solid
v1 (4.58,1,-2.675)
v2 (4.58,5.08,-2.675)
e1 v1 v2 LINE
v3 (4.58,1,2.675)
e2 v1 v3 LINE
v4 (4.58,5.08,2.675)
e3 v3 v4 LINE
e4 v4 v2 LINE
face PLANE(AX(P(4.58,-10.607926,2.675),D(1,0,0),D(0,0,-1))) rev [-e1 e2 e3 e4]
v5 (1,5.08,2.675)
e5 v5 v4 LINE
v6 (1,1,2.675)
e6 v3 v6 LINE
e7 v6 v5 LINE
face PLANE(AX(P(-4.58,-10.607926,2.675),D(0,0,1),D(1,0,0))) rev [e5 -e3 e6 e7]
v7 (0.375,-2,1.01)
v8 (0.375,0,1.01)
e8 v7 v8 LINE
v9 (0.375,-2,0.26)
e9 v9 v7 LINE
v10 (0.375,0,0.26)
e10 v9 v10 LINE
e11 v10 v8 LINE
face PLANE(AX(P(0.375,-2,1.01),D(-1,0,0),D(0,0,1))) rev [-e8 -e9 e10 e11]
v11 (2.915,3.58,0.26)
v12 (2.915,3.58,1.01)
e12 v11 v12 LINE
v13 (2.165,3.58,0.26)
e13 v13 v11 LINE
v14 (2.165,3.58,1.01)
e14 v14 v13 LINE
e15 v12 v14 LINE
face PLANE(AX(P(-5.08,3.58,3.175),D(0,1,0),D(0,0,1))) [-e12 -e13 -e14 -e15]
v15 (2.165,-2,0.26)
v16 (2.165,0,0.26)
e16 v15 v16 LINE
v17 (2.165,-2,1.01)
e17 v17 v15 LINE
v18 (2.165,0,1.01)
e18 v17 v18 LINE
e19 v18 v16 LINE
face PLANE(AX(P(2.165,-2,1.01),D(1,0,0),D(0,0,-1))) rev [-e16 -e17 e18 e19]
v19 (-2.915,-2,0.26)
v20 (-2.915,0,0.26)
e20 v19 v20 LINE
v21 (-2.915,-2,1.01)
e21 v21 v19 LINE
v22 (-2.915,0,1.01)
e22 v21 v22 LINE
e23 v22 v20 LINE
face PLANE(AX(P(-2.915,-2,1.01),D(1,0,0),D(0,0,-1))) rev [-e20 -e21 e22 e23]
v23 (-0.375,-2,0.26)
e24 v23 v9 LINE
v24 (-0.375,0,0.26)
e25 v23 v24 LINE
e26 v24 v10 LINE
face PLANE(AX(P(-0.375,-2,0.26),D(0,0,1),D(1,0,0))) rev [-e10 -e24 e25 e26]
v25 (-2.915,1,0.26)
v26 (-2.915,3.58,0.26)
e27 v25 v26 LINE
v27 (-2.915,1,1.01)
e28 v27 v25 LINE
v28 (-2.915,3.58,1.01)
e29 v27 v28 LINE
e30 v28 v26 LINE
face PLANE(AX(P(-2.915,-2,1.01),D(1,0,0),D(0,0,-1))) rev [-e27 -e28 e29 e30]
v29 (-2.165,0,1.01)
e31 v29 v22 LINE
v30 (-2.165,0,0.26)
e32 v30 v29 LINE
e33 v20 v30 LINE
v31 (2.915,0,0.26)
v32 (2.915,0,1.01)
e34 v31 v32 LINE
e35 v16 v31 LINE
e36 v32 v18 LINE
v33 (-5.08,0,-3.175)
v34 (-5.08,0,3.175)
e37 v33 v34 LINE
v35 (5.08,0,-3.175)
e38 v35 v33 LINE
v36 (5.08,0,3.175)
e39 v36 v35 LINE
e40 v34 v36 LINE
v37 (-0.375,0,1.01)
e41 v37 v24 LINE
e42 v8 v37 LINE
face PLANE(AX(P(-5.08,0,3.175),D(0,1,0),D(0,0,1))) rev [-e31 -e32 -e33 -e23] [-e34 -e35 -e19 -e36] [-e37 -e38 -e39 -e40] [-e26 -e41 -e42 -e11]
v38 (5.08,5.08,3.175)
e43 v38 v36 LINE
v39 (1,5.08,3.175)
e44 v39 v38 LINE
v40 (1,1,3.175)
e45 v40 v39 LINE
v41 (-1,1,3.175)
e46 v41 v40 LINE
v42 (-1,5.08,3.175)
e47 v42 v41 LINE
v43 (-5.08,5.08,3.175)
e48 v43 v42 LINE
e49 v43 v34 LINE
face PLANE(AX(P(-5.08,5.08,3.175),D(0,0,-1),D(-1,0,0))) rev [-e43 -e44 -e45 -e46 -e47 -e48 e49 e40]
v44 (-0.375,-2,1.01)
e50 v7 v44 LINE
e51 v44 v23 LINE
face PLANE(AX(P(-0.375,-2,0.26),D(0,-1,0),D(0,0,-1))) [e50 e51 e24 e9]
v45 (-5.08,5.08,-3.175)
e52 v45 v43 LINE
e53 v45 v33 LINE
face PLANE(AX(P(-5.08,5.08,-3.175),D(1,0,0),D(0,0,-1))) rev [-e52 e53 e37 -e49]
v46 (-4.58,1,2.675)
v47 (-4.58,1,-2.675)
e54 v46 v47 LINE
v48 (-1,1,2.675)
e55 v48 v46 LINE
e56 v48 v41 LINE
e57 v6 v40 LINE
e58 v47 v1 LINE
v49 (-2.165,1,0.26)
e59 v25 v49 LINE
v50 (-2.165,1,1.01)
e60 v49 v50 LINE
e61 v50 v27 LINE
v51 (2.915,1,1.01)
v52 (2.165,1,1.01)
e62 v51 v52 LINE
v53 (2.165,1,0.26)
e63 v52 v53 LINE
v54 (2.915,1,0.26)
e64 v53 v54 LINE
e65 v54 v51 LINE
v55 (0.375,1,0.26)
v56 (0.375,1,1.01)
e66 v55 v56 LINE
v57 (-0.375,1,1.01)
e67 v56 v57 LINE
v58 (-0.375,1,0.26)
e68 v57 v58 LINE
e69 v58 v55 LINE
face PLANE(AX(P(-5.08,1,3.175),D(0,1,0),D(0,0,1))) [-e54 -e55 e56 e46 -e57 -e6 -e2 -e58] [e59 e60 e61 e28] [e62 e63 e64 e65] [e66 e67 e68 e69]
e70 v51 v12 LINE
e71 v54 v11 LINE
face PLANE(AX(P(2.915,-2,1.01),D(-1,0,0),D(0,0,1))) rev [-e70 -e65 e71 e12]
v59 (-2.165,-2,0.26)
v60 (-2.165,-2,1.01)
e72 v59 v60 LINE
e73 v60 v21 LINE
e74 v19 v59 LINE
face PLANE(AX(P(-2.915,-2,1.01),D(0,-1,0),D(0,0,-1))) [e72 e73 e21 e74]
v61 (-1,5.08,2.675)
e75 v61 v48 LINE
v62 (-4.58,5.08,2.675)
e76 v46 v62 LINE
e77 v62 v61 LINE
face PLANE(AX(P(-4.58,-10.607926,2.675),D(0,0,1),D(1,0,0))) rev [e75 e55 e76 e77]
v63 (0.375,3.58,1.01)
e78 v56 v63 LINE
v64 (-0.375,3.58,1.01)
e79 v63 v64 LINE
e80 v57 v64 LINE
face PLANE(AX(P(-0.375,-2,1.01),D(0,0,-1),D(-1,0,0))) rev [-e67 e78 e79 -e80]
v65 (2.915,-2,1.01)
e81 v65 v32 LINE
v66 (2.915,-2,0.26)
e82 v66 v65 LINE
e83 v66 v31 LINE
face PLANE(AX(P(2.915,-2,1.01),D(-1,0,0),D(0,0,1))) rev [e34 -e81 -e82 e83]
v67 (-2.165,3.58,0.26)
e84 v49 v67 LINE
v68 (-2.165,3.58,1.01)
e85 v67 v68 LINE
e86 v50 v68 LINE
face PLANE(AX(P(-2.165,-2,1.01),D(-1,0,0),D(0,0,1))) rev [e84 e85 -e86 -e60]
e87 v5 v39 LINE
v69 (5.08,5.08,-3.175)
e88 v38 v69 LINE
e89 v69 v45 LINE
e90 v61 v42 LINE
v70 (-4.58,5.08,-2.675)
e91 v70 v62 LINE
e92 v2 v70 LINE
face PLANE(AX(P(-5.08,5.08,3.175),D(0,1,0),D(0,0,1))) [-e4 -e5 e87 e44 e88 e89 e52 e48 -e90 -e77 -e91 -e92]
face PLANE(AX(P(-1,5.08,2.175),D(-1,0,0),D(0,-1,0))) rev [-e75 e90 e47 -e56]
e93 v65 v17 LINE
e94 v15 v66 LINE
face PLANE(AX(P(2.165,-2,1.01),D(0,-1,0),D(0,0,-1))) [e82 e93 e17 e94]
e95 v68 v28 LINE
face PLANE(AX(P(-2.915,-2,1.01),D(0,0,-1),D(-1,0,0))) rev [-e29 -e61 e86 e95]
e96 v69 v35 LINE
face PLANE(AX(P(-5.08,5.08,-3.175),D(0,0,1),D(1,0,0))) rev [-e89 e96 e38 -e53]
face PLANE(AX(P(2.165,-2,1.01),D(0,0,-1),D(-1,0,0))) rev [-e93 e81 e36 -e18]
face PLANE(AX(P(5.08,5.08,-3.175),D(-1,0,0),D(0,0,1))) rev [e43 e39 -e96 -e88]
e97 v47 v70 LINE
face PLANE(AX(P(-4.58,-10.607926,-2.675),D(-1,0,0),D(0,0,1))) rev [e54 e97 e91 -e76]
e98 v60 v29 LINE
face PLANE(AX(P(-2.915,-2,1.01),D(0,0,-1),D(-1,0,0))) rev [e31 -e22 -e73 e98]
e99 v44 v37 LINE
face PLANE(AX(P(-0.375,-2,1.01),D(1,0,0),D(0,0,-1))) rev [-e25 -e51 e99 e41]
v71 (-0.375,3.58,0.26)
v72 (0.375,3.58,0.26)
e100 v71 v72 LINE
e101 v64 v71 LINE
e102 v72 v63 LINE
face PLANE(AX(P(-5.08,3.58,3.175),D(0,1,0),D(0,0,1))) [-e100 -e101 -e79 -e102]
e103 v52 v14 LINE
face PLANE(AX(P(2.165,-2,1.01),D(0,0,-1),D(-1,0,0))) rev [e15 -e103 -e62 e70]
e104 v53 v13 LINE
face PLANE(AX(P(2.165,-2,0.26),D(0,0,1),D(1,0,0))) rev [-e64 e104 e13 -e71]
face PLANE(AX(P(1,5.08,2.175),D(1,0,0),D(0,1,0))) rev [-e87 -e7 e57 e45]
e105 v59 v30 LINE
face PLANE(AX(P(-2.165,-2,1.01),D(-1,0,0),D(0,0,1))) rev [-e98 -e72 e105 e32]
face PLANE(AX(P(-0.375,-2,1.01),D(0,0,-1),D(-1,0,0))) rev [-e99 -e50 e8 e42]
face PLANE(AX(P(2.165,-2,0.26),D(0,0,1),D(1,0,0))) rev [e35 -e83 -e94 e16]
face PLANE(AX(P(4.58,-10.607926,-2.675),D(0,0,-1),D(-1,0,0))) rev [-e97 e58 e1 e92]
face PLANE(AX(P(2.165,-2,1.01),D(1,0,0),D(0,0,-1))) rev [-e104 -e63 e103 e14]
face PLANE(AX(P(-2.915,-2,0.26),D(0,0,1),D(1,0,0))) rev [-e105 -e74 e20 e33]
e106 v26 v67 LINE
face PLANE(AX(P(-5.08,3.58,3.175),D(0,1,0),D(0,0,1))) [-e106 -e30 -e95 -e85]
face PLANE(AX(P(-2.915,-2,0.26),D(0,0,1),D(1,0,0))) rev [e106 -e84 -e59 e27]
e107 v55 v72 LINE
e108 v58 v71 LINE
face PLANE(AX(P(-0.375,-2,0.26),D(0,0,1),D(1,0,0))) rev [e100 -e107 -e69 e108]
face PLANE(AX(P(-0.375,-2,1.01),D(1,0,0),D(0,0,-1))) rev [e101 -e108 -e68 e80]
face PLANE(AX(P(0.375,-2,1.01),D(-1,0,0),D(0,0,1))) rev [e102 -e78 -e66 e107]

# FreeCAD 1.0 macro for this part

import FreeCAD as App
import Part
import Sketcher
from FreeCAD import Vector
Q = App.Units.Quantity

doc = App.newDocument("Part")
body = doc.addObject("PartDesign::Body", "Body")

# Sketch on XZ plane
sketch1 = body.newObject("Sketcher::SketchObject", "Sketch")
sketch1.AttachmentSupport = (doc.getObject("XZ_Plane"), [""])
sketch1.MapMode = "FlatFace"
sketch1.addGeometry([
    Part.LineSegment(Vector(-5, -3, 0), Vector(-5, 3, 0)),
    Part.LineSegment(Vector(-5, 3, 0), Vector(5, 3, 0)),
    Part.LineSegment(Vector(5, 3, 0), Vector(5, -3, 0)),
    Part.LineSegment(Vector(5, -3, 0), Vector(-5, -3, 0)),
], False)
sketch1.addConstraint([
    Sketcher.Constraint("Coincident", 0, 2, 1, 1),
    Sketcher.Constraint("Coincident", 1, 2, 2, 1),
    Sketcher.Constraint("Coincident", 2, 2, 3, 1),
    Sketcher.Constraint("Coincident", 3, 2, 0, 1),
    Sketcher.Constraint("Vertical", 0),
    Sketcher.Constraint("Horizontal", 1),
    Sketcher.Constraint("Vertical", 2),
    Sketcher.Constraint("Horizontal", 3),
    Sketcher.Constraint("Symmetric", 0, 2, 2, 2, -1, 1),
    Sketcher.Constraint("DistanceX", 1, 1, 1, 2, Q("0.4 in")),
    Sketcher.Constraint("DistanceY", 0, 1, 0, 2, Q("0.25 in")),
])
pad1 = body.newObject("PartDesign::Pad", "Pad")
pad1.Profile = sketch1
pad1.Length = Q("0.2 in")
pad1.Reversed = True

# Sketch on XZ plane
sketch2 = body.newObject("Sketcher::SketchObject", "Sketch001")
sketch2.AttachmentSupport = (doc.getObject("XZ_Plane"), [""])
sketch2.MapMode = "FlatFace"
sketch2.AttachmentOffset = App.Placement(Vector(0, 0, -0.2 * 25.4), App.Rotation())
sketch2.addGeometry([
    Part.LineSegment(Vector(5, 3, 0), Vector(5, -3, 0)),
    Part.LineSegment(Vector(5, -3, 0), Vector(-5, -3, 0)),
    Part.LineSegment(Vector(-5, -3, 0), Vector(-5, 3, 0)),
    Part.LineSegment(Vector(-5, 3, 0), Vector(5, 3, 0)),
], False)
sketch2.addConstraint([
    Sketcher.Constraint("Coincident", 0, 2, 1, 1),
    Sketcher.Constraint("Coincident", 1, 2, 2, 1),
    Sketcher.Constraint("Coincident", 2, 2, 3, 1),
    Sketcher.Constraint("Coincident", 3, 2, 0, 1),
    Sketcher.Constraint("Vertical", 0),
    Sketcher.Constraint("Horizontal", 1),
    Sketcher.Constraint("Vertical", 2),
    Sketcher.Constraint("Horizontal", 3),
    Sketcher.Constraint("Symmetric", 0, 2, 2, 2, -1, 1),
    Sketcher.Constraint("DistanceX", 1, 2, 1, 1, Q("9.16 mm")),
    Sketcher.Constraint("DistanceY", 0, 2, 0, 1, Q("5.35 mm")),
])
pocket1 = body.newObject("PartDesign::Pocket", "Pocket")
pocket1.Profile = sketch2
pocket1.Length = 4.08
pocket1.Reversed = True

# Sketch on XY plane
sketch3 = body.newObject("Sketcher::SketchObject", "Sketch002")
sketch3.AttachmentSupport = (doc.getObject("XY_Plane"), [""])
sketch3.MapMode = "FlatFace"
sketch3.AttachmentOffset = App.Placement(Vector(0, 0, 0.125 * 25.4), App.Rotation())
sketch3.addGeometry([
    Part.LineSegment(Vector(-1, 5.1, 0), Vector(-1, 1, 0)),
    Part.LineSegment(Vector(-1, 1, 0), Vector(1, 1, 0)),
    Part.LineSegment(Vector(1, 1, 0), Vector(1, 5.1, 0)),
    Part.LineSegment(Vector(1, 5.1, 0), Vector(-1, 5.1, 0)),
], False)
sketch3.addConstraint([
    Sketcher.Constraint("Coincident", 0, 2, 1, 1),
    Sketcher.Constraint("Coincident", 1, 2, 2, 1),
    Sketcher.Constraint("Coincident", 2, 2, 3, 1),
    Sketcher.Constraint("Coincident", 3, 2, 0, 1),
    Sketcher.Constraint("Vertical", 0),
    Sketcher.Constraint("Horizontal", 1),
    Sketcher.Constraint("Vertical", 2),
    Sketcher.Constraint("Horizontal", 3),
    Sketcher.Constraint("DistanceY", -1, 1, 2, 2, Q("0.2 in")),
    Sketcher.Constraint("DistanceX", 1, 1, 1, 2, Q("2 mm")),
    Sketcher.Constraint("DistanceY", 0, 2, 0, 1, Q("4.08 mm")),
    Sketcher.Constraint("DistanceX", 0, 2, -1, 1, Q("1 mm")),
])
pocket2 = body.newObject("PartDesign::Pocket", "Pocket001")
pocket2.Profile = sketch3
pocket2.Length = 1

# Sketch on XZ plane
sketch4 = body.newObject("Sketcher::SketchObject", "Sketch003")
sketch4.AttachmentSupport = (doc.getObject("XZ_Plane"), [""])
sketch4.MapMode = "FlatFace"
sketch4.addGeometry([
    Part.LineSegment(Vector(-0.4, 1, 0), Vector(-0.4, 0.3, 0)),  # 0
    Part.LineSegment(Vector(-0.4, 0.3, 0), Vector(0.4, 0.3, 0)),  # 1
    Part.LineSegment(Vector(0.4, 0.3, 0), Vector(0.4, 1, 0)),  # 2
    Part.LineSegment(Vector(0.4, 1, 0), Vector(-0.4, 1, 0)),  # 3
    Part.LineSegment(Vector(2.2, 1, 0), Vector(2.2, 0.3, 0)),  # 4
    Part.LineSegment(Vector(2.2, 0.3, 0), Vector(2.9, 0.3, 0)),  # 5
    Part.LineSegment(Vector(2.9, 0.3, 0), Vector(2.9, 1, 0)),  # 6
    Part.LineSegment(Vector(2.9, 1, 0), Vector(2.2, 1, 0)),  # 7
    Part.LineSegment(Vector(-2.9, 1, 0), Vector(-2.9, 0.3, 0)),  # 8
    Part.LineSegment(Vector(-2.9, 0.3, 0), Vector(-2.2, 0.3, 0)),  # 9
    Part.LineSegment(Vector(-2.2, 0.3, 0), Vector(-2.2, 1, 0)),  # 10
    Part.LineSegment(Vector(-2.2, 1, 0), Vector(-2.9, 1, 0)),  # 11
], False)
sketch4.addConstraint([
    Sketcher.Constraint("Coincident", 0, 2, 1, 1),
    Sketcher.Constraint("Coincident", 1, 2, 2, 1),
    Sketcher.Constraint("Coincident", 2, 2, 3, 1),
    Sketcher.Constraint("Coincident", 3, 2, 0, 1),
    Sketcher.Constraint("Coincident", 4, 2, 5, 1),
    Sketcher.Constraint("Coincident", 5, 2, 6, 1),
    Sketcher.Constraint("Coincident", 6, 2, 7, 1),
    Sketcher.Constraint("Coincident", 7, 2, 4, 1),
    Sketcher.Constraint("Coincident", 8, 2, 9, 1),
    Sketcher.Constraint("Coincident", 9, 2, 10, 1),
    Sketcher.Constraint("Coincident", 10, 2, 11, 1),
    Sketcher.Constraint("Coincident", 11, 2, 8, 1),
    Sketcher.Constraint("Vertical", 0),
    Sketcher.Constraint("Horizontal", 1),
    Sketcher.Constraint("Vertical", 2),
    Sketcher.Constraint("Horizontal", 3),
    Sketcher.Constraint("Vertical", 4),
    Sketcher.Constraint("Horizontal", 5),
    Sketcher.Constraint("Vertical", 6),
    Sketcher.Constraint("Horizontal", 7),
    Sketcher.Constraint("Vertical", 8),
    Sketcher.Constraint("Horizontal", 9),
    Sketcher.Constraint("Vertical", 10),
    Sketcher.Constraint("Horizontal", 11),
    Sketcher.Constraint("Symmetric", 5, 2, 8, 2, -2),
    Sketcher.Constraint("Symmetric", 7, 2, 10, 2, -2),
    Sketcher.Constraint("Horizontal", 1, 2, 4, 2),
    Sketcher.Constraint("Horizontal", 3, 2, 6, 2),
    Sketcher.Constraint("Equal", 3, 5),
    Sketcher.Constraint("Equal", 11, 0),
    Sketcher.Constraint("DistanceX", 0, 2, 4, 2, Q("0.1 in")),
    Sketcher.Constraint("DistanceX", 8, 2, 0, 2, Q("0.1 in")),
    Sketcher.Constraint("DistanceX", 1, 1, 1, 2, Q("0.75 mm")),
    Sketcher.Constraint("DistanceY", -1, 1, 0, 2, Q("0.26 mm")),
])
pad2 = body.newObject("PartDesign::Pad", "Pad001")
pad2.Profile = sketch4
pad2.Type = "TwoLengths"
pad2.Length = 2
pad2.Length2 = 3.58

doc.recompute()
